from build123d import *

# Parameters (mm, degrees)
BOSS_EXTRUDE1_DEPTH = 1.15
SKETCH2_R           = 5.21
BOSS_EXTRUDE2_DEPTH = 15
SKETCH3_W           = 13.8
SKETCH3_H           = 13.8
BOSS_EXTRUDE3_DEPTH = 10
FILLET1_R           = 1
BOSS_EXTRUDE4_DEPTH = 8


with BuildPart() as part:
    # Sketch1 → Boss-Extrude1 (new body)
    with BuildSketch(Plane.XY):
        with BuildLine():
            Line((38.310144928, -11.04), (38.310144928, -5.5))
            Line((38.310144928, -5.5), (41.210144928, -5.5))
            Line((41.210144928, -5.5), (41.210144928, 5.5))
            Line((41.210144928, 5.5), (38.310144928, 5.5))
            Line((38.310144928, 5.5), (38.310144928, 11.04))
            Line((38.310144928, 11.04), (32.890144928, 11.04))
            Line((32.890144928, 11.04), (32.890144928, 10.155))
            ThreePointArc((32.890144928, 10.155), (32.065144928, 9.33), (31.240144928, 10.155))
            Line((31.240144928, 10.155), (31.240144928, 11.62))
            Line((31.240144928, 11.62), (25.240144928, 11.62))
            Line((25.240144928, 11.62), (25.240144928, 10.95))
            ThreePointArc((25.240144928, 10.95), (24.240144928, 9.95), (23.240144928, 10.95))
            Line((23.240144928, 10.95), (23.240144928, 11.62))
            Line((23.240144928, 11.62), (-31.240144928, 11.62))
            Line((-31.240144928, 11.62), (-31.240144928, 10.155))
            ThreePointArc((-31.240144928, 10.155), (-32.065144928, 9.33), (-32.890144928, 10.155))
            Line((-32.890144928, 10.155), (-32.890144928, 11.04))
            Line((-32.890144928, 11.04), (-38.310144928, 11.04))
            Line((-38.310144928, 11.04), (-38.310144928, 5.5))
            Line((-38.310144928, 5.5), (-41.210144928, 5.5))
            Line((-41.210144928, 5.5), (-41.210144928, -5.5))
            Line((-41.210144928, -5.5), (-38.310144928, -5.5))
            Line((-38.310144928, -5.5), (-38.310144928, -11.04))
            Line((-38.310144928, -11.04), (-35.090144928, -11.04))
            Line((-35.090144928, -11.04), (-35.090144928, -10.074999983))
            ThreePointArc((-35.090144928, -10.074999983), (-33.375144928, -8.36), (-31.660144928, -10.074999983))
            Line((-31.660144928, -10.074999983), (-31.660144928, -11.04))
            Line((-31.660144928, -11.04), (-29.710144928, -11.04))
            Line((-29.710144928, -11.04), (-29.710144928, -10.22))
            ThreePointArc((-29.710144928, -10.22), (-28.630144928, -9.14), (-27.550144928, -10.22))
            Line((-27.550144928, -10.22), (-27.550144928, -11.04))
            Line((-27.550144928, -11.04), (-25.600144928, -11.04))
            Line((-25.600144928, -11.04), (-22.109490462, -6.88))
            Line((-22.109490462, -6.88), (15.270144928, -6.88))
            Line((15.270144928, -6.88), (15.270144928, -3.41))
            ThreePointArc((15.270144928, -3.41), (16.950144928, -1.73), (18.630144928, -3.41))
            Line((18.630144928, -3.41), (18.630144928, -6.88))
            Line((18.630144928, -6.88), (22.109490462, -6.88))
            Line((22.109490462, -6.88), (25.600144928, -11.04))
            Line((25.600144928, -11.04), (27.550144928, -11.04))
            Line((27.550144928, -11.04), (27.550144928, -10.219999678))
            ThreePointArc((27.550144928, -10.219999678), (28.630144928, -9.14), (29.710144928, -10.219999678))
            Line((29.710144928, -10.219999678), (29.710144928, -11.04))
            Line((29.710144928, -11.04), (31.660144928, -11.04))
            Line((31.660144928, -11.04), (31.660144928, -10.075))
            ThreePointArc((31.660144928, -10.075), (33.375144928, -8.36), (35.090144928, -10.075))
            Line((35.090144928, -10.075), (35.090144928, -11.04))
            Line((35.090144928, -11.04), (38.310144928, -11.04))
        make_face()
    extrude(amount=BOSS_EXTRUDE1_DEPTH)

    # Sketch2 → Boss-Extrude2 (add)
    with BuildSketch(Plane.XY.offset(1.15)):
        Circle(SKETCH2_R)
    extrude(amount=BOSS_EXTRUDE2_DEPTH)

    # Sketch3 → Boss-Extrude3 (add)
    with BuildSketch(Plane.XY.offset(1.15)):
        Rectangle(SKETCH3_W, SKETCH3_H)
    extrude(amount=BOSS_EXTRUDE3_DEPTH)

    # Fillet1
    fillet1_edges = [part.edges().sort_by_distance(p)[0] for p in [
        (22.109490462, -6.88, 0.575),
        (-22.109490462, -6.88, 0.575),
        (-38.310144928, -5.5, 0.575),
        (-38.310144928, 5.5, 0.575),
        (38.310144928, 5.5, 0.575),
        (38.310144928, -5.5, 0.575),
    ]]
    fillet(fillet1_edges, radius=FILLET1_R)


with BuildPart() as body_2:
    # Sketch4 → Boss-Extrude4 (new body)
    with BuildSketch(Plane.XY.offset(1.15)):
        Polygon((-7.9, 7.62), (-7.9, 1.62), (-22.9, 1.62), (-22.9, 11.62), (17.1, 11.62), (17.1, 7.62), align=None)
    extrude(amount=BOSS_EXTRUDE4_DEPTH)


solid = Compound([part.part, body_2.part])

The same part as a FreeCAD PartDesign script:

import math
import FreeCAD as App
import Part
import Sketcher
from FreeCAD import Vector
Q = App.Units.Quantity


def edges_at(feature, points):
    """Names of the edges that pass closest to the given points."""
    edges = feature.Shape.Edges
    near = lambda p: min(range(len(edges)), key=lambda i: edges[i].distToShape(Part.Vertex(*p))[0])
    return sorted({f"Edge{near(p) + 1}" for p in points})


def add_polygon(sketch, points):
    """Adds a closed chain of lines whose ends are joined by coincident constraints."""
    first, n = sketch.GeometryCount, len(points)
    for a, b in zip(points, points[1:] + points[:1]):
        sketch.addGeometry(Part.LineSegment(App.Vector(*a, 0), App.Vector(*b, 0)), False)
    for i in range(n):
        sketch.addConstraint(Sketcher.Constraint("Coincident", first + i, 2, first + (i + 1) % n, 1))

doc = App.newDocument("Part")
body = doc.addObject("PartDesign::Body", "Body")

# Sketch on XY plane
sketch1 = body.newObject("Sketcher::SketchObject", "Sketch")
sketch1.AttachmentSupport = (doc.getObject("XY_Plane"), [""])
sketch1.MapMode = "FlatFace"
sketch1.addGeometry([
    Part.LineSegment(Vector(38.310145, -11.04, 0), Vector(38.310145, -5.5, 0)),  # 0
    Part.LineSegment(Vector(38.310145, -5.5, 0), Vector(41.210145, -5.5, 0)),  # 1
    Part.LineSegment(Vector(41.210145, -5.5, 0), Vector(41.210145, 5.5, 0)),  # 2
    Part.LineSegment(Vector(41.210145, 5.5, 0), Vector(38.310145, 5.5, 0)),  # 3
    Part.LineSegment(Vector(38.310145, 5.5, 0), Vector(38.310145, 11.04, 0)),  # 4
    Part.LineSegment(Vector(38.310145, 11.04, 0), Vector(32.890145, 11.04, 0)),  # 5
    Part.LineSegment(Vector(32.890145, 11.04, 0), Vector(32.890145, 10.155, 0)),  # 6
    Part.ArcOfCircle(Part.Circle(Vector(32.065145, 10.155, 0), Vector(0, 0, 1), 0.825), math.radians(180), math.radians(360)),  # 7
    Part.LineSegment(Vector(31.240145, 10.155, 0), Vector(31.240145, 11.62, 0)),  # 8
    Part.LineSegment(Vector(31.240145, 11.62, 0), Vector(25.240145, 11.62, 0)),  # 9
    Part.LineSegment(Vector(25.240145, 11.62, 0), Vector(25.240145, 10.95, 0)),  # 10
    Part.ArcOfCircle(Part.Circle(Vector(24.240145, 10.95, 0), Vector(0, 0, 1), 1), math.radians(180), math.radians(360)),  # 11
    Part.LineSegment(Vector(23.240145, 10.95, 0), Vector(23.240145, 11.62, 0)),  # 12
    Part.LineSegment(Vector(23.240145, 11.62, 0), Vector(-31.240145, 11.62, 0)),  # 13
    Part.LineSegment(Vector(-31.240145, 11.62, 0), Vector(-31.240145, 10.155, 0)),  # 14
    Part.ArcOfCircle(Part.Circle(Vector(-32.065145, 10.155, 0), Vector(0, 0, 1), 0.825), math.radians(180), math.radians(360)),  # 15
    Part.LineSegment(Vector(-32.890145, 10.155, 0), Vector(-32.890145, 11.04, 0)),  # 16
    Part.LineSegment(Vector(-32.890145, 11.04, 0), Vector(-38.310145, 11.04, 0)),  # 17
    Part.LineSegment(Vector(-38.310145, 11.04, 0), Vector(-38.310145, 5.5, 0)),  # 18
    Part.LineSegment(Vector(-38.310145, 5.5, 0), Vector(-41.210145, 5.5, 0)),  # 19
    Part.LineSegment(Vector(-41.210145, 5.5, 0), Vector(-41.210145, -5.5, 0)),  # 20
    Part.LineSegment(Vector(-41.210145, -5.5, 0), Vector(-38.310145, -5.5, 0)),  # 21
    Part.LineSegment(Vector(-38.310145, -5.5, 0), Vector(-38.310145, -11.04, 0)),  # 22
    Part.LineSegment(Vector(-38.310145, -11.04, 0), Vector(-35.090145, -11.04, 0)),  # 23
    Part.LineSegment(Vector(-35.090145, -11.04, 0), Vector(-35.090145, -10.075, 0)),  # 24
    Part.ArcOfCircle(Part.Circle(Vector(-33.375145, -10.075, 0), Vector(0, 0, 1), 1.715), math.radians(0.000001), math.radians(179.999999)),  # 25
    Part.LineSegment(Vector(-31.660145, -10.075, 0), Vector(-31.660145, -11.04, 0)),  # 26
    Part.LineSegment(Vector(-31.660145, -11.04, 0), Vector(-29.710145, -11.04, 0)),  # 27
    Part.LineSegment(Vector(-29.710145, -11.04, 0), Vector(-29.710145, -10.22, 0)),  # 28
    Part.ArcOfCircle(Part.Circle(Vector(-28.630145, -10.22, 0), Vector(0, 0, 1), 1.08), math.radians(0), math.radians(180)),  # 29
    Part.LineSegment(Vector(-27.550145, -10.22, 0), Vector(-27.550145, -11.04, 0)),  # 30
    Part.LineSegment(Vector(-27.550145, -11.04, 0), Vector(-25.600145, -11.04, 0)),  # 31
    Part.LineSegment(Vector(-25.600145, -11.04, 0), Vector(-22.10949, -6.88, 0)),  # 32
    Part.LineSegment(Vector(-22.10949, -6.88, 0), Vector(15.270145, -6.88, 0)),  # 33
    Part.LineSegment(Vector(15.270145, -6.88, 0), Vector(15.270145, -3.41, 0)),  # 34
    Part.ArcOfCircle(Part.Circle(Vector(16.950145, -3.41, 0), Vector(0, 0, 1), 1.68), math.radians(0), math.radians(180)),  # 35
    Part.LineSegment(Vector(18.630145, -3.41, 0), Vector(18.630145, -6.88, 0)),  # 36
    Part.LineSegment(Vector(18.630145, -6.88, 0), Vector(22.10949, -6.88, 0)),  # 37
    Part.LineSegment(Vector(22.10949, -6.88, 0), Vector(25.600145, -11.04, 0)),  # 38
    Part.LineSegment(Vector(25.600145, -11.04, 0), Vector(27.550145, -11.04, 0)),  # 39
    Part.LineSegment(Vector(27.550145, -11.04, 0), Vector(27.550145, -10.22, 0)),  # 40
    Part.ArcOfCircle(Part.Circle(Vector(28.630145, -10.22, 0), Vector(0, 0, 1), 1.08), math.radians(0.000017), math.radians(179.999983)),  # 41
    Part.LineSegment(Vector(29.710145, -10.22, 0), Vector(29.710145, -11.04, 0)),  # 42
    Part.LineSegment(Vector(29.710145, -11.04, 0), Vector(31.660145, -11.04, 0)),  # 43
    Part.LineSegment(Vector(31.660145, -11.04, 0), Vector(31.660145, -10.075, 0)),  # 44
    Part.ArcOfCircle(Part.Circle(Vector(33.375145, -10.075, 0), Vector(0, 0, 1), 1.715), math.radians(0), math.radians(180)),  # 45
    Part.LineSegment(Vector(35.090145, -10.075, 0), Vector(35.090145, -11.04, 0)),  # 46
    Part.LineSegment(Vector(35.090145, -11.04, 0), Vector(38.310145, -11.04, 0)),  # 47
], False)
sketch1.addConstraint([
    Sketcher.Constraint("Coincident", 0, 2, 1, 1),
    Sketcher.Constraint("Coincident", 1, 2, 2, 1),
    Sketcher.Constraint("Coincident", 2, 2, 3, 1),
    Sketcher.Constraint("Coincident", 3, 2, 4, 1),
    Sketcher.Constraint("Coincident", 4, 2, 5, 1),
    Sketcher.Constraint("Coincident", 5, 2, 6, 1),
    Sketcher.Constraint("Tangent", 6, 2, 7, 2),
    Sketcher.Constraint("Tangent", 7, 1, 8, 1),
    Sketcher.Constraint("Coincident", 8, 2, 9, 1),
    Sketcher.Constraint("Coincident", 9, 2, 10, 1),
    Sketcher.Constraint("Tangent", 10, 2, 11, 2),
    Sketcher.Constraint("Tangent", 11, 1, 12, 1),
    Sketcher.Constraint("Coincident", 12, 2, 13, 1),
    Sketcher.Constraint("Coincident", 13, 2, 14, 1),
    Sketcher.Constraint("Tangent", 14, 2, 15, 2),
    Sketcher.Constraint("Tangent", 15, 1, 16, 1),
    Sketcher.Constraint("Coincident", 16, 2, 17, 1),
    Sketcher.Constraint("Coincident", 17, 2, 18, 1),
    Sketcher.Constraint("Coincident", 18, 2, 19, 1),
    Sketcher.Constraint("Coincident", 19, 2, 20, 1),
    Sketcher.Constraint("Coincident", 20, 2, 21, 1),
    Sketcher.Constraint("Coincident", 21, 2, 22, 1),
    Sketcher.Constraint("Coincident", 22, 2, 23, 1),
    Sketcher.Constraint("Coincident", 23, 2, 24, 1),
    Sketcher.Constraint("Tangent", 24, 2, 25, 2),
    Sketcher.Constraint("Tangent", 25, 1, 26, 1),
    Sketcher.Constraint("Coincident", 26, 2, 27, 1),
    Sketcher.Constraint("Coincident", 27, 2, 28, 1),
    Sketcher.Constraint("Tangent", 28, 2, 29, 2),
    Sketcher.Constraint("Tangent", 29, 1, 30, 1),
    Sketcher.Constraint("Coincident", 30, 2, 31, 1),
    Sketcher.Constraint("Coincident", 31, 2, 32, 1),
    Sketcher.Constraint("Coincident", 32, 2, 33, 1),
    Sketcher.Constraint("Coincident", 33, 2, 34, 1),
    Sketcher.Constraint("Tangent", 34, 2, 35, 2),
    Sketcher.Constraint("Tangent", 35, 1, 36, 1),
    Sketcher.Constraint("Coincident", 36, 2, 37, 1),
    Sketcher.Constraint("Coincident", 37, 2, 38, 1),
    Sketcher.Constraint("Coincident", 38, 2, 39, 1),
    Sketcher.Constraint("Coincident", 39, 2, 40, 1),
    Sketcher.Constraint("Tangent", 40, 2, 41, 2),
    Sketcher.Constraint("Tangent", 41, 1, 42, 1),
    Sketcher.Constraint("Coincident", 42, 2, 43, 1),
    Sketcher.Constraint("Coincident", 43, 2, 44, 1),
    Sketcher.Constraint("Tangent", 44, 2, 45, 2),
    Sketcher.Constraint("Tangent", 45, 1, 46, 1),
    Sketcher.Constraint("Coincident", 46, 2, 47, 1),
    Sketcher.Constraint("Coincident", 47, 2, 0, 1),
    Sketcher.Constraint("Vertical", 0),
    Sketcher.Constraint("Horizontal", 1),
    Sketcher.Constraint("Vertical", 2),
    Sketcher.Constraint("Horizontal", 3),
    Sketcher.Constraint("Vertical", 4),
    Sketcher.Constraint("Horizontal", 5),
    Sketcher.Constraint("Vertical", 6),
    Sketcher.Constraint("Vertical", 8),
    Sketcher.Constraint("Horizontal", 9),
    Sketcher.Constraint("Vertical", 10),
    Sketcher.Constraint("Vertical", 12),
    Sketcher.Constraint("Horizontal", 13),
    Sketcher.Constraint("Vertical", 14),
    Sketcher.Constraint("Vertical", 16),
    Sketcher.Constraint("Horizontal", 17),
    Sketcher.Constraint("Vertical", 18),
    Sketcher.Constraint("Horizontal", 19),
    Sketcher.Constraint("Vertical", 20),
    Sketcher.Constraint("Horizontal", 21),
    Sketcher.Constraint("Vertical", 22),
    Sketcher.Constraint("Horizontal", 23),
    Sketcher.Constraint("Vertical", 24),
    Sketcher.Constraint("Vertical", 26),
    Sketcher.Constraint("Horizontal", 27),
    Sketcher.Constraint("Vertical", 28),
    Sketcher.Constraint("Vertical", 30),
    Sketcher.Constraint("Horizontal", 31),
    Sketcher.Constraint("Horizontal", 33),
    Sketcher.Constraint("Vertical", 34),
    Sketcher.Constraint("Vertical", 36),
    Sketcher.Constraint("Horizontal", 37),
    Sketcher.Constraint("Horizontal", 39),
    Sketcher.Constraint("Vertical", 40),
    Sketcher.Constraint("Vertical", 42),
    Sketcher.Constraint("Horizontal", 43),
    Sketcher.Constraint("Vertical", 44),
    Sketcher.Constraint("Vertical", 46),
    Sketcher.Constraint("Horizontal", 47),
    Sketcher.Constraint("Equal", 7, 15),
    Sketcher.Constraint("Equal", 29, 41),
    Sketcher.Constraint("Equal", 25, 45),
    Sketcher.Constraint("Symmetric", 0, 2, 18, 2, -1, 1),
    Sketcher.Constraint("Symmetric", 2, 2, 20, 2, -1, 1),
    Sketcher.Constraint("Symmetric", 4, 2, 22, 2, -1, 1),
    Sketcher.Constraint("Symmetric", 7, 3, 15, 3, -2),
    Sketcher.Constraint("Symmetric", 29, 3, 41, 3, -2),
    Sketcher.Constraint("Symmetric", 25, 3, 45, 3, -2),
    Sketcher.Constraint("Symmetric", 4, 2, 17, 2, -2),
    Sketcher.Constraint("Symmetric", 32, 2, 37, 2, -2),
    Sketcher.Constraint("Symmetric", 31, 2, 38, 2, -2),
    Sketcher.Constraint("Horizontal", 9, 2, 12, 2),
    Sketcher.Constraint("Horizontal", 3, 2, 18, 2),
    Sketcher.Constraint("Horizontal", 23, 2, 26, 2),
    Sketcher.Constraint("Horizontal", 27, 2, 30, 2),
    Sketcher.Constraint("Horizontal", 39, 2, 42, 2),
    Sketcher.Constraint("Horizontal", 43, 2, 46, 2),
    Sketcher.Constraint("Equal", 27, 31),
    Sketcher.Constraint("Radius", 11, Q("1 mm")),
    Sketcher.Constraint("DistanceX", 9, 2, 9, 1, Q("6 mm")),
    Sketcher.Constraint("DistanceY", 2, 1, 2, 2, Q("11 mm")),
    Sketcher.Constraint("Angle", 32, Q("50 deg")),
    Sketcher.Constraint("Radius", 29, Q("1.08 mm")),
    Sketcher.Constraint("Radius", 35, Q("1.68 mm")),
    Sketcher.Constraint("DistanceX", 1, 1, 1, 2, Q("2.9 mm")),
    Sketcher.Constraint("Radius", 7, Q("0.825 mm")),
    Sketcher.Constraint("Radius", 25, Q("1.715 mm")),
    Sketcher.Constraint("DistanceX", 35, 1, 41, 3, Q("10 mm")),
    Sketcher.Constraint("DistanceX", 5, 2, 5, 1, Q("5.42 mm")),
    Sketcher.Constraint("DistanceX", 23, 1, 23, 2, Q("3.22 mm")),
    Sketcher.Constraint("DistanceX", 27, 1, 27, 2, Q("1.95 mm")),
    Sketcher.Constraint("DistanceY", 0, 1, 0, 2, Q("5.54 mm")),
    Sketcher.Constraint("DistanceY", 10, 2, 10, 1, Q("0.67 mm")),
    Sketcher.Constraint("DistanceY", 28, 1, 28, 2, Q("0.82 mm")),
    Sketcher.Constraint("DistanceY", 34, 1, 34, 2, Q("3.47 mm")),
    Sketcher.Constraint("DistanceY", 6, 2, 6, 1, Q("0.885 mm")),
    Sketcher.Constraint("DistanceY", 8, 1, 8, 2, Q("1.465 mm")),
    Sketcher.Constraint("DistanceY", 24, 1, 24, 2, Q("0.965 mm")),
    Sketcher.Constraint("DistanceY", 35, 3, -1, 1, Q("3.41 mm")),
    Sketcher.Constraint("DistanceX", 13, 2, 13, 1, Q("54.48029 mm")),
])
pad1 = body.newObject("PartDesign::Pad", "Pad")
pad1.Profile = sketch1
pad1.Length = 1.15

# Sketch on XY plane
sketch2 = body.newObject("Sketcher::SketchObject", "Sketch001")
sketch2.AttachmentSupport = (doc.getObject("XY_Plane"), [""])
sketch2.MapMode = "FlatFace"
sketch2.AttachmentOffset = App.Placement(Vector(0, 0, 1.15), App.Rotation())
sketch2.addGeometry(Part.Circle(Vector(0, 0, 0), Vector(0, 0, 1), 5.21), False)
sketch2.addConstraint([
    Sketcher.Constraint("Coincident", 0, 3, -1, 1),
    Sketcher.Constraint("Diameter", 0, Q("10.42 mm")),
])
pad2 = body.newObject("PartDesign::Pad", "Pad001")
pad2.Profile = sketch2
pad2.Length = 15

# Sketch on XY plane
sketch3 = body.newObject("Sketcher::SketchObject", "Sketch002")
sketch3.AttachmentSupport = (doc.getObject("XY_Plane"), [""])
sketch3.MapMode = "FlatFace"
sketch3.AttachmentOffset = App.Placement(Vector(0, 0, 1.15), App.Rotation())
add_polygon(sketch3, [(-6.9, 6.9), (-6.9, -6.9), (6.9, -6.9), (6.9, 6.9)])  # lines 0-3
sketch3.addConstraint([
    Sketcher.Constraint("Vertical", 0),
    Sketcher.Constraint("Horizontal", 1),
    Sketcher.Constraint("Vertical", 2),
    Sketcher.Constraint("Horizontal", 3),
    Sketcher.Constraint("Symmetric", 0, 2, 2, 2, -1, 1),
    Sketcher.Constraint("Equal", 3, 0),
    Sketcher.Constraint("DistanceX", 1, 1, 1, 2, Q("13.8 mm")),
])
pad3 = body.newObject("PartDesign::Pad", "Pad002")
pad3.Profile = sketch3
pad3.Length = 10
doc.recompute()

fillet = body.newObject("PartDesign::Fillet", "Fillet")
fillet.Base = (pad3, edges_at(pad3, [
    (22.109, -6.88, 0.575),
    (-22.109, -6.88, 0.575),
    (-38.31, -5.5, 0.575),
    (-38.31, 5.5, 0.575),
    (38.31, 5.5, 0.575),
    (38.31, -5.5, 0.575),
]))
fillet.Radius = 1
body2 = doc.addObject("PartDesign::Body", "Body001")

# Sketch on XY plane
sketch4 = body2.newObject("Sketcher::SketchObject", "Sketch003")
sketch4.AttachmentSupport = (doc.getObject("XY_Plane001"), [""])
sketch4.MapMode = "FlatFace"
sketch4.AttachmentOffset = App.Placement(Vector(0, 0, 1.15), App.Rotation())
add_polygon(sketch4, [(-7.9, 1.62), (-7.9, 7.62), (17.1, 7.62), (17.1, 11.62), (-22.9, 11.62), (-22.9, 1.62)])  # lines 0-5
sketch4.addConstraint([
    Sketcher.Constraint("Vertical", 0),
    Sketcher.Constraint("Horizontal", 1),
    Sketcher.Constraint("Vertical", 2),
    Sketcher.Constraint("Horizontal", 3),
    Sketcher.Constraint("Vertical", 4),
    Sketcher.Constraint("Horizontal", 5),
    Sketcher.Constraint("DistanceX", 1, 1, 1, 2, Q("25 mm")),
    Sketcher.Constraint("DistanceX", 3, 2, 3, 1, Q("40 mm")),
    Sketcher.Constraint("DistanceY", 0, 1, 0, 2, Q("6 mm")),
    Sketcher.Constraint("DistanceY", 2, 1, 2, 2, Q("4 mm")),
    Sketcher.Constraint("DistanceX", 0, 2, -1, 1, Q("7.9 mm")),
    Sketcher.Constraint("DistanceY", -1, 1, 0, 2, Q("7.62 mm")),
])
pad4 = body2.newObject("PartDesign::Pad", "Pad003")
pad4.Profile = sketch4
pad4.Length = 8

doc.recompute()
